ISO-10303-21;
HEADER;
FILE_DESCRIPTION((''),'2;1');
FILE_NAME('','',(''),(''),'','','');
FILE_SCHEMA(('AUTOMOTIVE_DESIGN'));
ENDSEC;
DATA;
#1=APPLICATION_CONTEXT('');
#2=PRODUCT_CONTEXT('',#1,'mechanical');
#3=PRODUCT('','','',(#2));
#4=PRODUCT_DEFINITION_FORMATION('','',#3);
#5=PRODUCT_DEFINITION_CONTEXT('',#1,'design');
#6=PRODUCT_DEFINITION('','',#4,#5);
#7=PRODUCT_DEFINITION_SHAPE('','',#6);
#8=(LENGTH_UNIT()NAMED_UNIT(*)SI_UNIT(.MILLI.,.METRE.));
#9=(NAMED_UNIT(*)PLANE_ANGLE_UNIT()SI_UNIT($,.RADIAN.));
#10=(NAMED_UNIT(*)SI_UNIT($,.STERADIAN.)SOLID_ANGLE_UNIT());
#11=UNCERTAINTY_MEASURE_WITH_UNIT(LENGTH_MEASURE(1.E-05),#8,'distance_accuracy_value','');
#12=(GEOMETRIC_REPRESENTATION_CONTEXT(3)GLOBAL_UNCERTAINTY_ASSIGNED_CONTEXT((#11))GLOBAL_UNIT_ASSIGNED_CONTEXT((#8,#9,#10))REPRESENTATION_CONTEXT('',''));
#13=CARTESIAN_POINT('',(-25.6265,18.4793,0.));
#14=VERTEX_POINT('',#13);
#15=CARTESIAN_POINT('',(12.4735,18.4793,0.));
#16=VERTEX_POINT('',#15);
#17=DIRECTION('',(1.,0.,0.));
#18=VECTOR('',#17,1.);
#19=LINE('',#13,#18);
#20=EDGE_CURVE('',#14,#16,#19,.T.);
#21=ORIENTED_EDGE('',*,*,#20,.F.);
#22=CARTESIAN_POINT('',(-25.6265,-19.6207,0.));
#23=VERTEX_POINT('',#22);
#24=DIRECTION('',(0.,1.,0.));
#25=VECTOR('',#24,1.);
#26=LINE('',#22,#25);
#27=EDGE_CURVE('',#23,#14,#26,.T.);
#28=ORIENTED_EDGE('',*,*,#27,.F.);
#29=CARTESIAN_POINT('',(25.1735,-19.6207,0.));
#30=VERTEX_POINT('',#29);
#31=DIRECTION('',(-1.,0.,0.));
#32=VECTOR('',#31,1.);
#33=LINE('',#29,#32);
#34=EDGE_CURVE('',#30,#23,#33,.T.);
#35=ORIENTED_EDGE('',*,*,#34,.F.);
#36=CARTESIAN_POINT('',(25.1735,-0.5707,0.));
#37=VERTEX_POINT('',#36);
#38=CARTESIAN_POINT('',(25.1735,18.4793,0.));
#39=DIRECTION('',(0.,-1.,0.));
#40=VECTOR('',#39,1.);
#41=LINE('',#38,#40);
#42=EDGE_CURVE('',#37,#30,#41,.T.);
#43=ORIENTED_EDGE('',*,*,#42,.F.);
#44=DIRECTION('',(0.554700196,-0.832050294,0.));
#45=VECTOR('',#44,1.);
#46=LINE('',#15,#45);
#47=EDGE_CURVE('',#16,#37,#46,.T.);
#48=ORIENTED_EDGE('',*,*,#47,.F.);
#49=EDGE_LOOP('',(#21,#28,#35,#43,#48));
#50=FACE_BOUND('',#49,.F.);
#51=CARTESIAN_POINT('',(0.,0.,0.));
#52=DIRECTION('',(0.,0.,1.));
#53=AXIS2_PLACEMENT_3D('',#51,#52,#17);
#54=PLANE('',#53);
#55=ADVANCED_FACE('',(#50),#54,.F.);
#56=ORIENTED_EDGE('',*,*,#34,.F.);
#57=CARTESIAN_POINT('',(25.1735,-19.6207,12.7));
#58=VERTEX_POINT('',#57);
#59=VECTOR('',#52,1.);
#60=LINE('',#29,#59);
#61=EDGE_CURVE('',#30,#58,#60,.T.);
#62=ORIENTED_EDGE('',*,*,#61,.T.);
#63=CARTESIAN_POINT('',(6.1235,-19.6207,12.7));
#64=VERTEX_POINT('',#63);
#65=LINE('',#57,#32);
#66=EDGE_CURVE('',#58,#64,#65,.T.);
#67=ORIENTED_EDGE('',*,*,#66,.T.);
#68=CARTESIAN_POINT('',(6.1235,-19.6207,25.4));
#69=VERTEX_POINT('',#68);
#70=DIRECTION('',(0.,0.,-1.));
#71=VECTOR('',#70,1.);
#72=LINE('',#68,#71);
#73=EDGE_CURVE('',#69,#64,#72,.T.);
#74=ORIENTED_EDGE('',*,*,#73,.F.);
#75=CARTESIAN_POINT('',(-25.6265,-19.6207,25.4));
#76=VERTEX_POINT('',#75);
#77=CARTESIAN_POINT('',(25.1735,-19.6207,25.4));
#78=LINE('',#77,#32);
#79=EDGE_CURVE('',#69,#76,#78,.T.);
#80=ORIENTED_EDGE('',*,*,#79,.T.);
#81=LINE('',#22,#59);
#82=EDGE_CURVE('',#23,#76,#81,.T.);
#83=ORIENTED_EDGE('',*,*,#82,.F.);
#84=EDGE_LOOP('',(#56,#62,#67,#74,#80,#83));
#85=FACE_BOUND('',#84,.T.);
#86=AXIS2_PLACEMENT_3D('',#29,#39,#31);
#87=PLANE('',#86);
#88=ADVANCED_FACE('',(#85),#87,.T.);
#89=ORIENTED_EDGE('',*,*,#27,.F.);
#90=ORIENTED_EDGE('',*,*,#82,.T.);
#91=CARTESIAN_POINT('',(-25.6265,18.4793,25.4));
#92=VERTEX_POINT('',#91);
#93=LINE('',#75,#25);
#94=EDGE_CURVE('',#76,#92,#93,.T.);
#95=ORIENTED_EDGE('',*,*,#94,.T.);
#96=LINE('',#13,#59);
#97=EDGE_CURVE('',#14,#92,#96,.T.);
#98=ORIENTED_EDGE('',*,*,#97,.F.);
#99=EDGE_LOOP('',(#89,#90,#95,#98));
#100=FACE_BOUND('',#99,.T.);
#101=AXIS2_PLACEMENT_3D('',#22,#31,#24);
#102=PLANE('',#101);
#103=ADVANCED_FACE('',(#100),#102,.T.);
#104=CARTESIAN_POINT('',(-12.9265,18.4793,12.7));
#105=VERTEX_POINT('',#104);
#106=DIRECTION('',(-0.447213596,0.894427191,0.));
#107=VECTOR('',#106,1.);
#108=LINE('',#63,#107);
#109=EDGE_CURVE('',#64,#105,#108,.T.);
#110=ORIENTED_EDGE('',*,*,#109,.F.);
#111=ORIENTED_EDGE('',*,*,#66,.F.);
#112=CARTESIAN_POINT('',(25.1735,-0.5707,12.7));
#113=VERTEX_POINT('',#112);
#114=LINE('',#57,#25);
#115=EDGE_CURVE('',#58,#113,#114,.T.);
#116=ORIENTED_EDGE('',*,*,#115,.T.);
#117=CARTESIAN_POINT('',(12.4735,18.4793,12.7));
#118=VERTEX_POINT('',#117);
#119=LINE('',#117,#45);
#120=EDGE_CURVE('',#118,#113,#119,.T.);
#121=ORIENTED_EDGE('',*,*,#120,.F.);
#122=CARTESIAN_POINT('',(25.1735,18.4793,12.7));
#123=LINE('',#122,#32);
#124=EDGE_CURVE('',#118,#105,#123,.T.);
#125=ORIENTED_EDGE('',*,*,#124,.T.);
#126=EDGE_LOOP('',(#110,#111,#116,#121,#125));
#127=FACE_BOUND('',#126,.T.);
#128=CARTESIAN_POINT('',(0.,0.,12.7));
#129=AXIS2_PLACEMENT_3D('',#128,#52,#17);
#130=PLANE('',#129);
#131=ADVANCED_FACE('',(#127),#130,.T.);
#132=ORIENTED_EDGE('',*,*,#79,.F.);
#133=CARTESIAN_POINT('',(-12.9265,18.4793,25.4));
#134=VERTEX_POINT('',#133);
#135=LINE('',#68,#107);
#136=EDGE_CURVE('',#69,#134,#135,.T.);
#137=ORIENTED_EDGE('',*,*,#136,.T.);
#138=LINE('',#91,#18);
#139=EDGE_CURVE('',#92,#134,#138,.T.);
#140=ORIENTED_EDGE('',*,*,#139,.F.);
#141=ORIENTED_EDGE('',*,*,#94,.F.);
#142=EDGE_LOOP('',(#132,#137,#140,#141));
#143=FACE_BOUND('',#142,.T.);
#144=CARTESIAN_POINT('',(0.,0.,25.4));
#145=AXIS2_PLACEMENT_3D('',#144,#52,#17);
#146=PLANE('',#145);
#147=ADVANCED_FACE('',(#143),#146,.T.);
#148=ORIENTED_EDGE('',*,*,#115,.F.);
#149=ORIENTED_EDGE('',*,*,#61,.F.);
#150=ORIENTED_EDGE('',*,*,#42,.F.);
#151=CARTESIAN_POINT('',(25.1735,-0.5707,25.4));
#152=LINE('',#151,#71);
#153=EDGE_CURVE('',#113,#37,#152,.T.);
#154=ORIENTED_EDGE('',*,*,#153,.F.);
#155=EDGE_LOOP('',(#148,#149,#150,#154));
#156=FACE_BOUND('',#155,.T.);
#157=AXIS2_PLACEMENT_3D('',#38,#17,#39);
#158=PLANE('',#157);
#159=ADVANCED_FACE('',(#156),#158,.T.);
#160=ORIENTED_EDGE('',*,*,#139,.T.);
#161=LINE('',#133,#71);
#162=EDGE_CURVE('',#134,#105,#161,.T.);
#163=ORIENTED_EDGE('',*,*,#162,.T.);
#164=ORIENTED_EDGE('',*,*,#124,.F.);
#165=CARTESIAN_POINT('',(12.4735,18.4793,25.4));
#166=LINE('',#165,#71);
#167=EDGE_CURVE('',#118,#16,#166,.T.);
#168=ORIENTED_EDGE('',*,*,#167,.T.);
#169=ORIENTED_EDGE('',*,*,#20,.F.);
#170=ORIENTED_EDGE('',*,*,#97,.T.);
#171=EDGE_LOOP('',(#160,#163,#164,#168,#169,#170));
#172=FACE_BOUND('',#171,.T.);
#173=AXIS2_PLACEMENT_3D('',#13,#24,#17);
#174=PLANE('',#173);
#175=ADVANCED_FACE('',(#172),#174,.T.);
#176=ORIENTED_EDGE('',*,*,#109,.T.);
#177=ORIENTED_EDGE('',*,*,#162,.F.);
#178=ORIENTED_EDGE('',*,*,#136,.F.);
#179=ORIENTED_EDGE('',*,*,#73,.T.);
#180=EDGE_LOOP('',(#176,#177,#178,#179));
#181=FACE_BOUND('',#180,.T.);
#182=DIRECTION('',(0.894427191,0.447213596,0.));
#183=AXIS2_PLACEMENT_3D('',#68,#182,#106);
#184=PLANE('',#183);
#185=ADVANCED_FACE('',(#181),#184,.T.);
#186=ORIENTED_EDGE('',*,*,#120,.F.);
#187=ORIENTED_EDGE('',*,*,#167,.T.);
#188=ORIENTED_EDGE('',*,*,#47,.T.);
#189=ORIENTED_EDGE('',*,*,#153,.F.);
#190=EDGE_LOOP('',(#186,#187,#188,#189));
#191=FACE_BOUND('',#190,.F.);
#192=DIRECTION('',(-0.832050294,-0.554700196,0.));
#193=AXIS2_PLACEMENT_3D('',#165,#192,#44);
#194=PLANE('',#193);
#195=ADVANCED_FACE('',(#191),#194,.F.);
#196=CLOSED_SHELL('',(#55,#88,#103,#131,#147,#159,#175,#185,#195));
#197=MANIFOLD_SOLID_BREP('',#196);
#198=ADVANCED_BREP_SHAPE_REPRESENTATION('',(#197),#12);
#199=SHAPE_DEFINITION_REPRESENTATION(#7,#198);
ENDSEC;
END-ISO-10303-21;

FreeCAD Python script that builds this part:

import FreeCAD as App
import Part
import Sketcher
from FreeCAD import Vector
Q = App.Units.Quantity


def add_polygon(sketch, points):
    """Adds a closed chain of lines whose ends are joined by coincident constraints."""
    first, n = sketch.GeometryCount, len(points)
    for a, b in zip(points, points[1:] + points[:1]):
        sketch.addGeometry(Part.LineSegment(App.Vector(*a, 0), App.Vector(*b, 0)), False)
    for i in range(n):
        sketch.addConstraint(Sketcher.Constraint("Coincident", first + i, 2, first + (i + 1) % n, 1))

doc = App.newDocument("Part")
body = doc.addObject("PartDesign::Body", "Body")

# Sketch on XY plane
sketch1 = body.newObject("Sketcher::SketchObject", "Sketch")
sketch1.AttachmentSupport = (doc.getObject("XY_Plane"), [""])
sketch1.MapMode = "FlatFace"
add_polygon(sketch1, [(25, 18), (-26, 18), (-26, -20), (25, -20)])  # lines 0-3
sketch1.addConstraint(Sketcher.Constraint("Horizontal", 0))
sketch1.addConstraint(Sketcher.Constraint("Vertical", 1))
sketch1.addConstraint(Sketcher.Constraint("Horizontal", 2))
sketch1.addConstraint(Sketcher.Constraint("Vertical", 3))
sketch1.addConstraint(Sketcher.Constraint("DistanceX", 0, 2, 0, 1, Q("2 in")))
sketch1.addConstraint(Sketcher.Constraint("DistanceY", 1, 2, 1, 1, Q("1.5 in")))
sketch1.addConstraint(Sketcher.Constraint("DistanceX", 0, 2, -1, 1, 25.6265))
sketch1.addConstraint(Sketcher.Constraint("DistanceY", -1, 1, 0, 2, 18.4793))
pad1 = body.newObject("PartDesign::Pad", "Pad")
pad1.Profile = sketch1
pad1.Length = Q("1 in")

# Sketch on XY plane
sketch2 = body.newObject("Sketcher::SketchObject", "Sketch001")
sketch2.AttachmentSupport = (doc.getObject("XY_Plane"), [""])
sketch2.MapMode = "FlatFace"
sketch2.AttachmentOffset = App.Placement(Vector(0, 0, 1 * 25.4), App.Rotation())
add_polygon(sketch2, [(25, -1), (25, 18), (12, 18)])  # lines 0-2
sketch2.addConstraint(Sketcher.Constraint("Vertical", 0))
sketch2.addConstraint(Sketcher.Constraint("Horizontal", 1))
sketch2.addConstraint(Sketcher.Constraint("DistanceX", 1, 2, 1, 1, Q("0.5 in")))
sketch2.addConstraint(Sketcher.Constraint("DistanceY", 0, 1, 0, 2, Q("0.75 in")))
sketch2.addConstraint(Sketcher.Constraint("DistanceX", -1, 1, 0, 2, 25.1735))
sketch2.addConstraint(Sketcher.Constraint("DistanceY", -1, 1, 0, 2, 18.4793))
pocket1 = body.newObject("PartDesign::Pocket", "Pocket")
pocket1.Profile = sketch2
pocket1.Length = Q("1 in")

# Sketch on XY plane
sketch3 = body.newObject("Sketcher::SketchObject", "Sketch002")
sketch3.AttachmentSupport = (doc.getObject("XY_Plane"), [""])
sketch3.MapMode = "FlatFace"
sketch3.AttachmentOffset = App.Placement(Vector(0, 0, 1 * 25.4), App.Rotation())
add_polygon(sketch3, [(25, -1), (12, 18), (-13, 18), (6, -20), (25, -20)])  # lines 0-4
sketch3.addConstraint(Sketcher.Constraint("Horizontal", 1))
sketch3.addConstraint(Sketcher.Constraint("Horizontal", 3))
sketch3.addConstraint(Sketcher.Constraint("Vertical", 4))
sketch3.addConstraint(Sketcher.Constraint("Equal", 3, 4))
sketch3.addConstraint(Sketcher.Constraint("DistanceX", 3, 1, 3, 2, Q("0.75 in")))
sketch3.addConstraint(Sketcher.Constraint("DistanceX", 0, 2, 3, 2, Q("0.5 in")))
sketch3.addConstraint(Sketcher.Constraint("DistanceX", 1, 2, 1, 1, Q("1 in")))
sketch3.addConstraint(Sketcher.Constraint("DistanceY", 4, 2, 0, 2, Q("0.75 in")))
sketch3.addConstraint(Sketcher.Constraint("DistanceX", -1, 1, 0, 2, 12.4735))
sketch3.addConstraint(Sketcher.Constraint("DistanceY", -1, 1, 0, 2, 18.4793))
pocket2 = body.newObject("PartDesign::Pocket", "Pocket001")
pocket2.Profile = sketch3
pocket2.Length = Q("0.5 in")

doc.recompute()
